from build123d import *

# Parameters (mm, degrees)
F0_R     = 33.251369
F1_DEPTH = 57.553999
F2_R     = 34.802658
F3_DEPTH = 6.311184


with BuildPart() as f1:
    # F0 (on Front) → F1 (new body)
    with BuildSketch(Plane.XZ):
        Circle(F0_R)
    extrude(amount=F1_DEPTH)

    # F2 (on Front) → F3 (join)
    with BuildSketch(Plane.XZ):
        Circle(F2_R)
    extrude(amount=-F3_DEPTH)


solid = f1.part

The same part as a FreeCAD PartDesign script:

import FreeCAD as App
import Part
import Sketcher
from FreeCAD import Vector

doc = App.newDocument("Part")
params = doc.addObject("Spreadsheet::Sheet", "Params")
for row, (alias, value) in enumerate([
    ("pad1_length", "57.553999 mm"),
    ("pad2_length", "6.311184 mm"),
], start=1):
    params.set(f"A{row}", alias)
    params.set(f"B{row}", "=" + value)
    params.setAlias(f"B{row}", alias)

body = doc.addObject("PartDesign::Body", "Body")

sketch1 = body.newObject("Sketcher::SketchObject", "Sketch")
sketch1.AttachmentSupport = (doc.getObject("XZ_Plane"), [""])
sketch1.MapMode = "FlatFace"
sketch1.addGeometry(Part.Circle(Vector(0, 0, 0), Vector(0, 0, 1), 33.251369), False)
sketch1.addConstraint([
    Sketcher.Constraint("Coincident", 0, 3, -1, 1),
    Sketcher.Constraint("Diameter", 0, 66.502738),
])
pad1 = body.newObject("PartDesign::Pad", "Pad")
pad1.Profile = sketch1
pad1.setExpression("Length", "Params.pad1_length")

sketch2 = body.newObject("Sketcher::SketchObject", "Sketch001")
sketch2.AttachmentSupport = (doc.getObject("XZ_Plane"), [""])
sketch2.MapMode = "FlatFace"
sketch2.addGeometry(Part.Circle(Vector(0, 0, 0), Vector(0, 0, 1), 34.802658), False)
sketch2.addConstraint([
    Sketcher.Constraint("Coincident", 0, 3, -1, 1),
    Sketcher.Constraint("Diameter", 0, 69.605316),
])
pad2 = body.newObject("PartDesign::Pad", "Pad001")
pad2.Profile = sketch2
pad2.setExpression("Length", "Params.pad2_length")
pad2.Reversed = True

doc.recompute()
